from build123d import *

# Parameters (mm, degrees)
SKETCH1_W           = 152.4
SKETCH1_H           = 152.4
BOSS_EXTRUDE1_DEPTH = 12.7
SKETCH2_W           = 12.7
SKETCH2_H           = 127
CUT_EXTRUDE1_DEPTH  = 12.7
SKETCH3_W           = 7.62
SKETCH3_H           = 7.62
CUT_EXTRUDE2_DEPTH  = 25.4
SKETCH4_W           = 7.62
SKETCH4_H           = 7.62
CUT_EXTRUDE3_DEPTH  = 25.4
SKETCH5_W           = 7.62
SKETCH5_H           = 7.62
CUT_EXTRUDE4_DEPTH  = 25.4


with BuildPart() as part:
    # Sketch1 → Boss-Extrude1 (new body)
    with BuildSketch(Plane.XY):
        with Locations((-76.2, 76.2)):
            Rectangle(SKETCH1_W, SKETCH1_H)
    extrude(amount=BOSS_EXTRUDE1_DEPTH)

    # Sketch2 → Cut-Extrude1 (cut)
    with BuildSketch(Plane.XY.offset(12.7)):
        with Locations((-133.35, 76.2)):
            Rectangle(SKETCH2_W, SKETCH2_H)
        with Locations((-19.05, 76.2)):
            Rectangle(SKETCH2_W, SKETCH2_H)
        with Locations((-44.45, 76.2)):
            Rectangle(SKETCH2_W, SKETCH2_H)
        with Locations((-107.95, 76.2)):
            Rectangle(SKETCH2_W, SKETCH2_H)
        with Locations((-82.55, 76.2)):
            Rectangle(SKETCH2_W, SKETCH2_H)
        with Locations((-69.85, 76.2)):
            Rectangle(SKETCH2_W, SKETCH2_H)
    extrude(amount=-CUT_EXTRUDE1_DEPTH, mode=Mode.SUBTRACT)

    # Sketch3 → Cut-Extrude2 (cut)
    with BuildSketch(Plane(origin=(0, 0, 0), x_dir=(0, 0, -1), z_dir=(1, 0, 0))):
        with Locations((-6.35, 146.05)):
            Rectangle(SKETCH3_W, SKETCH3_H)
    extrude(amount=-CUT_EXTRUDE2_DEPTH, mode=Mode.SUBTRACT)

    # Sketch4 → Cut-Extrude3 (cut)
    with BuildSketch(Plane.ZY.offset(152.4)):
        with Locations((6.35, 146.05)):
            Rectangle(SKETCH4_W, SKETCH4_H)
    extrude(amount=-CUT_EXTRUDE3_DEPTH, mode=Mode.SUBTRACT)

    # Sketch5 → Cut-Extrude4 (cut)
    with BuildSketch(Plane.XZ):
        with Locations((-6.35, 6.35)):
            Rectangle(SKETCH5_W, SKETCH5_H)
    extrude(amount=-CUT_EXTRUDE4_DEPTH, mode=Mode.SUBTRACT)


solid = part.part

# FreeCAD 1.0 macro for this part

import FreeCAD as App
import Part
import Sketcher
from FreeCAD import Vector
Q = App.Units.Quantity


def add_polygon(sketch, points):
    """Adds a closed chain of lines whose ends are joined by coincident constraints."""
    first, n = sketch.GeometryCount, len(points)
    for a, b in zip(points, points[1:] + points[:1]):
        sketch.addGeometry(Part.LineSegment(App.Vector(*a, 0), App.Vector(*b, 0)), False)
    for i in range(n):
        sketch.addConstraint(Sketcher.Constraint("Coincident", first + i, 2, first + (i + 1) % n, 1))

doc = App.newDocument("Part")
body = doc.addObject("PartDesign::Body", "Body")

# Sketch on XY plane
sketch1 = body.newObject("Sketcher::SketchObject", "Sketch")
sketch1.AttachmentSupport = (doc.getObject("XY_Plane"), [""])
sketch1.MapMode = "FlatFace"
add_polygon(sketch1, [(-152, 152), (-152, 0), (0, 0), (0, 152)])  # lines 0-3
sketch1.addConstraint(Sketcher.Constraint("Vertical", 0))
sketch1.addConstraint(Sketcher.Constraint("Horizontal", 1))
sketch1.addConstraint(Sketcher.Constraint("Vertical", 2))
sketch1.addConstraint(Sketcher.Constraint("Horizontal", 3))
sketch1.addConstraint(Sketcher.Constraint("Coincident", 1, 2, -1, 1))
sketch1.addConstraint(Sketcher.Constraint("Equal", 3, 0))
sketch1.addConstraint(Sketcher.Constraint("DistanceX", 1, 1, 1, 2, Q("6 in")))
pad1 = body.newObject("PartDesign::Pad", "Pad")
pad1.Profile = sketch1
pad1.Length = Q("0.5 in")

# Sketch on XY plane
sketch2 = body.newObject("Sketcher::SketchObject", "Sketch001")
sketch2.AttachmentSupport = (doc.getObject("XY_Plane"), [""])
sketch2.MapMode = "FlatFace"
sketch2.AttachmentOffset = App.Placement(Vector(0, 0, 0.5 * 25.4), App.Rotation())
add_polygon(sketch2, [(-140, 140), (-140, 13), (-127, 13), (-127, 140)])  # lines 0-3
add_polygon(sketch2, [(-25, 140), (-25, 13), (-13, 13), (-13, 140)])  # lines 4-7
add_polygon(sketch2, [(-51, 140), (-51, 13), (-38, 13), (-38, 140)])  # lines 8-11
add_polygon(sketch2, [(-114, 140), (-114, 13), (-102, 13), (-102, 140)])  # lines 12-15
add_polygon(sketch2, [(-89, 140), (-89, 13), (-64, 13), (-64, 140)])  # lines 16-19
sketch2.addConstraint(Sketcher.Constraint("Vertical", 0))
sketch2.addConstraint(Sketcher.Constraint("Horizontal", 1))
sketch2.addConstraint(Sketcher.Constraint("Vertical", 2))
sketch2.addConstraint(Sketcher.Constraint("Horizontal", 3))
sketch2.addConstraint(Sketcher.Constraint("Vertical", 4))
sketch2.addConstraint(Sketcher.Constraint("Horizontal", 5))
sketch2.addConstraint(Sketcher.Constraint("Vertical", 6))
sketch2.addConstraint(Sketcher.Constraint("Horizontal", 7))
sketch2.addConstraint(Sketcher.Constraint("Vertical", 8))
sketch2.addConstraint(Sketcher.Constraint("Horizontal", 9))
sketch2.addConstraint(Sketcher.Constraint("Vertical", 10))
sketch2.addConstraint(Sketcher.Constraint("Horizontal", 11))
sketch2.addConstraint(Sketcher.Constraint("Vertical", 12))
sketch2.addConstraint(Sketcher.Constraint("Horizontal", 13))
sketch2.addConstraint(Sketcher.Constraint("Vertical", 14))
sketch2.addConstraint(Sketcher.Constraint("Horizontal", 15))
sketch2.addConstraint(Sketcher.Constraint("Vertical", 16))
sketch2.addConstraint(Sketcher.Constraint("Horizontal", 17))
sketch2.addConstraint(Sketcher.Constraint("Vertical", 18))
sketch2.addConstraint(Sketcher.Constraint("Horizontal", 19))
sketch2.addConstraint(Sketcher.Constraint("Horizontal", 1, 2, 4, 2))
sketch2.addConstraint(Sketcher.Constraint("Horizontal", 3, 2, 6, 2))
sketch2.addConstraint(Sketcher.Constraint("Horizontal", 5, 2, 8, 2))
sketch2.addConstraint(Sketcher.Constraint("Horizontal", 7, 2, 10, 2))
sketch2.addConstraint(Sketcher.Constraint("Horizontal", 9, 2, 12, 2))
sketch2.addConstraint(Sketcher.Constraint("Horizontal", 11, 2, 14, 2))
sketch2.addConstraint(Sketcher.Constraint("Horizontal", 13, 2, 16, 2))
sketch2.addConstraint(Sketcher.Constraint("Horizontal", 15, 2, 18, 2))
sketch2.addConstraint(Sketcher.Constraint("Equal", 3, 5))
sketch2.addConstraint(Sketcher.Constraint("Equal", 7, 9))
sketch2.addConstraint(Sketcher.Constraint("Equal", 11, 13))
sketch2.addConstraint(Sketcher.Constraint("DistanceX", 17, 1, 17, 2, Q("1 in")))
sketch2.addConstraint(Sketcher.Constraint("DistanceY", 0, 2, 0, 1, Q("5 in")))
sketch2.addConstraint(Sketcher.Constraint("DistanceX", 1, 1, 1, 2, Q("0.5 in")))
sketch2.addConstraint(Sketcher.Constraint("DistanceX", 1, 2, -1, 1, Q("5 in")))
sketch2.addConstraint(Sketcher.Constraint("DistanceX", 4, 2, -1, 1, Q("1 in")))
sketch2.addConstraint(Sketcher.Constraint("DistanceX", 8, 2, -1, 1, Q("2 in")))
sketch2.addConstraint(Sketcher.Constraint("DistanceX", 13, 2, -1, 1, Q("4 in")))
sketch2.addConstraint(Sketcher.Constraint("DistanceX", 12, 2, 16, 2, Q("1 in")))
sketch2.addConstraint(Sketcher.Constraint("DistanceY", -1, 1, 0, 2, Q("0.5 in")))
pocket1 = body.newObject("PartDesign::Pocket", "Pocket")
pocket1.Profile = sketch2
pocket1.Length = Q("0.5 in")

# Sketch on YZ plane
sketch3 = body.newObject("Sketcher::SketchObject", "Sketch002")
sketch3.AttachmentSupport = (doc.getObject("YZ_Plane"), [""])
sketch3.MapMode = "FlatFace"
add_polygon(sketch3, [(150, 10), (142, 10), (142, 3), (150, 3)])  # lines 0-3
sketch3.addConstraint(Sketcher.Constraint("Horizontal", 0))
sketch3.addConstraint(Sketcher.Constraint("Vertical", 1))
sketch3.addConstraint(Sketcher.Constraint("Horizontal", 2))
sketch3.addConstraint(Sketcher.Constraint("Vertical", 3))
sketch3.addConstraint(Sketcher.Constraint("Equal", 2, 1))
sketch3.addConstraint(Sketcher.Constraint("DistanceX", 0, 2, 0, 1, Q("0.3 in")))
sketch3.addConstraint(Sketcher.Constraint("DistanceX", -1, 1, 0, 2, Q("5.6 in")))
sketch3.addConstraint(Sketcher.Constraint("DistanceY", -1, 1, 0, 2, Q("0.4 in")))
pocket2 = body.newObject("PartDesign::Pocket", "Pocket001")
pocket2.Profile = sketch3
pocket2.Length = Q("1 in")

# Sketch on YZ plane
sketch4 = body.newObject("Sketcher::SketchObject", "Sketch003")
sketch4.AttachmentSupport = (doc.getObject("YZ_Plane"), [""])
sketch4.MapMode = "FlatFace"
sketch4.AttachmentOffset = App.Placement(Vector(0, 0, -6 * 25.4), App.Rotation())
add_polygon(sketch4, [(150, 3), (142, 3), (142, 10), (150, 10)])  # lines 0-3
sketch4.addConstraint(Sketcher.Constraint("Horizontal", 0))
sketch4.addConstraint(Sketcher.Constraint("Vertical", 1))
sketch4.addConstraint(Sketcher.Constraint("Horizontal", 2))
sketch4.addConstraint(Sketcher.Constraint("Vertical", 3))
sketch4.addConstraint(Sketcher.Constraint("Equal", 2, 1))
sketch4.addConstraint(Sketcher.Constraint("DistanceX", 0, 2, 0, 1, Q("0.3 in")))
sketch4.addConstraint(Sketcher.Constraint("DistanceX", -1, 1, 0, 2, Q("5.6 in")))
sketch4.addConstraint(Sketcher.Constraint("DistanceY", -1, 1, 0, 2, Q("0.1 in")))
pocket3 = body.newObject("PartDesign::Pocket", "Pocket002")
pocket3.Profile = sketch4
pocket3.Length = Q("1 in")
pocket3.Reversed = True

# Sketch on XZ plane
sketch5 = body.newObject("Sketcher::SketchObject", "Sketch004")
sketch5.AttachmentSupport = (doc.getObject("XZ_Plane"), [""])
sketch5.MapMode = "FlatFace"
add_polygon(sketch5, [(-10, 10), (-10, 3), (-3, 3), (-3, 10)])  # lines 0-3
sketch5.addConstraint(Sketcher.Constraint("Vertical", 0))
sketch5.addConstraint(Sketcher.Constraint("Horizontal", 1))
sketch5.addConstraint(Sketcher.Constraint("Vertical", 2))
sketch5.addConstraint(Sketcher.Constraint("Horizontal", 3))
sketch5.addConstraint(Sketcher.Constraint("Equal", 3, 0))
sketch5.addConstraint(Sketcher.Constraint("DistanceX", 1, 1, 1, 2, Q("0.3 in")))
sketch5.addConstraint(Sketcher.Constraint("DistanceX", 0, 2, -1, 1, Q("0.4 in")))
sketch5.addConstraint(Sketcher.Constraint("DistanceY", -1, 1, 0, 2, Q("0.1 in")))
pocket4 = body.newObject("PartDesign::Pocket", "Pocket003")
pocket4.Profile = sketch5
pocket4.Length = Q("1 in")

doc.recompute()
